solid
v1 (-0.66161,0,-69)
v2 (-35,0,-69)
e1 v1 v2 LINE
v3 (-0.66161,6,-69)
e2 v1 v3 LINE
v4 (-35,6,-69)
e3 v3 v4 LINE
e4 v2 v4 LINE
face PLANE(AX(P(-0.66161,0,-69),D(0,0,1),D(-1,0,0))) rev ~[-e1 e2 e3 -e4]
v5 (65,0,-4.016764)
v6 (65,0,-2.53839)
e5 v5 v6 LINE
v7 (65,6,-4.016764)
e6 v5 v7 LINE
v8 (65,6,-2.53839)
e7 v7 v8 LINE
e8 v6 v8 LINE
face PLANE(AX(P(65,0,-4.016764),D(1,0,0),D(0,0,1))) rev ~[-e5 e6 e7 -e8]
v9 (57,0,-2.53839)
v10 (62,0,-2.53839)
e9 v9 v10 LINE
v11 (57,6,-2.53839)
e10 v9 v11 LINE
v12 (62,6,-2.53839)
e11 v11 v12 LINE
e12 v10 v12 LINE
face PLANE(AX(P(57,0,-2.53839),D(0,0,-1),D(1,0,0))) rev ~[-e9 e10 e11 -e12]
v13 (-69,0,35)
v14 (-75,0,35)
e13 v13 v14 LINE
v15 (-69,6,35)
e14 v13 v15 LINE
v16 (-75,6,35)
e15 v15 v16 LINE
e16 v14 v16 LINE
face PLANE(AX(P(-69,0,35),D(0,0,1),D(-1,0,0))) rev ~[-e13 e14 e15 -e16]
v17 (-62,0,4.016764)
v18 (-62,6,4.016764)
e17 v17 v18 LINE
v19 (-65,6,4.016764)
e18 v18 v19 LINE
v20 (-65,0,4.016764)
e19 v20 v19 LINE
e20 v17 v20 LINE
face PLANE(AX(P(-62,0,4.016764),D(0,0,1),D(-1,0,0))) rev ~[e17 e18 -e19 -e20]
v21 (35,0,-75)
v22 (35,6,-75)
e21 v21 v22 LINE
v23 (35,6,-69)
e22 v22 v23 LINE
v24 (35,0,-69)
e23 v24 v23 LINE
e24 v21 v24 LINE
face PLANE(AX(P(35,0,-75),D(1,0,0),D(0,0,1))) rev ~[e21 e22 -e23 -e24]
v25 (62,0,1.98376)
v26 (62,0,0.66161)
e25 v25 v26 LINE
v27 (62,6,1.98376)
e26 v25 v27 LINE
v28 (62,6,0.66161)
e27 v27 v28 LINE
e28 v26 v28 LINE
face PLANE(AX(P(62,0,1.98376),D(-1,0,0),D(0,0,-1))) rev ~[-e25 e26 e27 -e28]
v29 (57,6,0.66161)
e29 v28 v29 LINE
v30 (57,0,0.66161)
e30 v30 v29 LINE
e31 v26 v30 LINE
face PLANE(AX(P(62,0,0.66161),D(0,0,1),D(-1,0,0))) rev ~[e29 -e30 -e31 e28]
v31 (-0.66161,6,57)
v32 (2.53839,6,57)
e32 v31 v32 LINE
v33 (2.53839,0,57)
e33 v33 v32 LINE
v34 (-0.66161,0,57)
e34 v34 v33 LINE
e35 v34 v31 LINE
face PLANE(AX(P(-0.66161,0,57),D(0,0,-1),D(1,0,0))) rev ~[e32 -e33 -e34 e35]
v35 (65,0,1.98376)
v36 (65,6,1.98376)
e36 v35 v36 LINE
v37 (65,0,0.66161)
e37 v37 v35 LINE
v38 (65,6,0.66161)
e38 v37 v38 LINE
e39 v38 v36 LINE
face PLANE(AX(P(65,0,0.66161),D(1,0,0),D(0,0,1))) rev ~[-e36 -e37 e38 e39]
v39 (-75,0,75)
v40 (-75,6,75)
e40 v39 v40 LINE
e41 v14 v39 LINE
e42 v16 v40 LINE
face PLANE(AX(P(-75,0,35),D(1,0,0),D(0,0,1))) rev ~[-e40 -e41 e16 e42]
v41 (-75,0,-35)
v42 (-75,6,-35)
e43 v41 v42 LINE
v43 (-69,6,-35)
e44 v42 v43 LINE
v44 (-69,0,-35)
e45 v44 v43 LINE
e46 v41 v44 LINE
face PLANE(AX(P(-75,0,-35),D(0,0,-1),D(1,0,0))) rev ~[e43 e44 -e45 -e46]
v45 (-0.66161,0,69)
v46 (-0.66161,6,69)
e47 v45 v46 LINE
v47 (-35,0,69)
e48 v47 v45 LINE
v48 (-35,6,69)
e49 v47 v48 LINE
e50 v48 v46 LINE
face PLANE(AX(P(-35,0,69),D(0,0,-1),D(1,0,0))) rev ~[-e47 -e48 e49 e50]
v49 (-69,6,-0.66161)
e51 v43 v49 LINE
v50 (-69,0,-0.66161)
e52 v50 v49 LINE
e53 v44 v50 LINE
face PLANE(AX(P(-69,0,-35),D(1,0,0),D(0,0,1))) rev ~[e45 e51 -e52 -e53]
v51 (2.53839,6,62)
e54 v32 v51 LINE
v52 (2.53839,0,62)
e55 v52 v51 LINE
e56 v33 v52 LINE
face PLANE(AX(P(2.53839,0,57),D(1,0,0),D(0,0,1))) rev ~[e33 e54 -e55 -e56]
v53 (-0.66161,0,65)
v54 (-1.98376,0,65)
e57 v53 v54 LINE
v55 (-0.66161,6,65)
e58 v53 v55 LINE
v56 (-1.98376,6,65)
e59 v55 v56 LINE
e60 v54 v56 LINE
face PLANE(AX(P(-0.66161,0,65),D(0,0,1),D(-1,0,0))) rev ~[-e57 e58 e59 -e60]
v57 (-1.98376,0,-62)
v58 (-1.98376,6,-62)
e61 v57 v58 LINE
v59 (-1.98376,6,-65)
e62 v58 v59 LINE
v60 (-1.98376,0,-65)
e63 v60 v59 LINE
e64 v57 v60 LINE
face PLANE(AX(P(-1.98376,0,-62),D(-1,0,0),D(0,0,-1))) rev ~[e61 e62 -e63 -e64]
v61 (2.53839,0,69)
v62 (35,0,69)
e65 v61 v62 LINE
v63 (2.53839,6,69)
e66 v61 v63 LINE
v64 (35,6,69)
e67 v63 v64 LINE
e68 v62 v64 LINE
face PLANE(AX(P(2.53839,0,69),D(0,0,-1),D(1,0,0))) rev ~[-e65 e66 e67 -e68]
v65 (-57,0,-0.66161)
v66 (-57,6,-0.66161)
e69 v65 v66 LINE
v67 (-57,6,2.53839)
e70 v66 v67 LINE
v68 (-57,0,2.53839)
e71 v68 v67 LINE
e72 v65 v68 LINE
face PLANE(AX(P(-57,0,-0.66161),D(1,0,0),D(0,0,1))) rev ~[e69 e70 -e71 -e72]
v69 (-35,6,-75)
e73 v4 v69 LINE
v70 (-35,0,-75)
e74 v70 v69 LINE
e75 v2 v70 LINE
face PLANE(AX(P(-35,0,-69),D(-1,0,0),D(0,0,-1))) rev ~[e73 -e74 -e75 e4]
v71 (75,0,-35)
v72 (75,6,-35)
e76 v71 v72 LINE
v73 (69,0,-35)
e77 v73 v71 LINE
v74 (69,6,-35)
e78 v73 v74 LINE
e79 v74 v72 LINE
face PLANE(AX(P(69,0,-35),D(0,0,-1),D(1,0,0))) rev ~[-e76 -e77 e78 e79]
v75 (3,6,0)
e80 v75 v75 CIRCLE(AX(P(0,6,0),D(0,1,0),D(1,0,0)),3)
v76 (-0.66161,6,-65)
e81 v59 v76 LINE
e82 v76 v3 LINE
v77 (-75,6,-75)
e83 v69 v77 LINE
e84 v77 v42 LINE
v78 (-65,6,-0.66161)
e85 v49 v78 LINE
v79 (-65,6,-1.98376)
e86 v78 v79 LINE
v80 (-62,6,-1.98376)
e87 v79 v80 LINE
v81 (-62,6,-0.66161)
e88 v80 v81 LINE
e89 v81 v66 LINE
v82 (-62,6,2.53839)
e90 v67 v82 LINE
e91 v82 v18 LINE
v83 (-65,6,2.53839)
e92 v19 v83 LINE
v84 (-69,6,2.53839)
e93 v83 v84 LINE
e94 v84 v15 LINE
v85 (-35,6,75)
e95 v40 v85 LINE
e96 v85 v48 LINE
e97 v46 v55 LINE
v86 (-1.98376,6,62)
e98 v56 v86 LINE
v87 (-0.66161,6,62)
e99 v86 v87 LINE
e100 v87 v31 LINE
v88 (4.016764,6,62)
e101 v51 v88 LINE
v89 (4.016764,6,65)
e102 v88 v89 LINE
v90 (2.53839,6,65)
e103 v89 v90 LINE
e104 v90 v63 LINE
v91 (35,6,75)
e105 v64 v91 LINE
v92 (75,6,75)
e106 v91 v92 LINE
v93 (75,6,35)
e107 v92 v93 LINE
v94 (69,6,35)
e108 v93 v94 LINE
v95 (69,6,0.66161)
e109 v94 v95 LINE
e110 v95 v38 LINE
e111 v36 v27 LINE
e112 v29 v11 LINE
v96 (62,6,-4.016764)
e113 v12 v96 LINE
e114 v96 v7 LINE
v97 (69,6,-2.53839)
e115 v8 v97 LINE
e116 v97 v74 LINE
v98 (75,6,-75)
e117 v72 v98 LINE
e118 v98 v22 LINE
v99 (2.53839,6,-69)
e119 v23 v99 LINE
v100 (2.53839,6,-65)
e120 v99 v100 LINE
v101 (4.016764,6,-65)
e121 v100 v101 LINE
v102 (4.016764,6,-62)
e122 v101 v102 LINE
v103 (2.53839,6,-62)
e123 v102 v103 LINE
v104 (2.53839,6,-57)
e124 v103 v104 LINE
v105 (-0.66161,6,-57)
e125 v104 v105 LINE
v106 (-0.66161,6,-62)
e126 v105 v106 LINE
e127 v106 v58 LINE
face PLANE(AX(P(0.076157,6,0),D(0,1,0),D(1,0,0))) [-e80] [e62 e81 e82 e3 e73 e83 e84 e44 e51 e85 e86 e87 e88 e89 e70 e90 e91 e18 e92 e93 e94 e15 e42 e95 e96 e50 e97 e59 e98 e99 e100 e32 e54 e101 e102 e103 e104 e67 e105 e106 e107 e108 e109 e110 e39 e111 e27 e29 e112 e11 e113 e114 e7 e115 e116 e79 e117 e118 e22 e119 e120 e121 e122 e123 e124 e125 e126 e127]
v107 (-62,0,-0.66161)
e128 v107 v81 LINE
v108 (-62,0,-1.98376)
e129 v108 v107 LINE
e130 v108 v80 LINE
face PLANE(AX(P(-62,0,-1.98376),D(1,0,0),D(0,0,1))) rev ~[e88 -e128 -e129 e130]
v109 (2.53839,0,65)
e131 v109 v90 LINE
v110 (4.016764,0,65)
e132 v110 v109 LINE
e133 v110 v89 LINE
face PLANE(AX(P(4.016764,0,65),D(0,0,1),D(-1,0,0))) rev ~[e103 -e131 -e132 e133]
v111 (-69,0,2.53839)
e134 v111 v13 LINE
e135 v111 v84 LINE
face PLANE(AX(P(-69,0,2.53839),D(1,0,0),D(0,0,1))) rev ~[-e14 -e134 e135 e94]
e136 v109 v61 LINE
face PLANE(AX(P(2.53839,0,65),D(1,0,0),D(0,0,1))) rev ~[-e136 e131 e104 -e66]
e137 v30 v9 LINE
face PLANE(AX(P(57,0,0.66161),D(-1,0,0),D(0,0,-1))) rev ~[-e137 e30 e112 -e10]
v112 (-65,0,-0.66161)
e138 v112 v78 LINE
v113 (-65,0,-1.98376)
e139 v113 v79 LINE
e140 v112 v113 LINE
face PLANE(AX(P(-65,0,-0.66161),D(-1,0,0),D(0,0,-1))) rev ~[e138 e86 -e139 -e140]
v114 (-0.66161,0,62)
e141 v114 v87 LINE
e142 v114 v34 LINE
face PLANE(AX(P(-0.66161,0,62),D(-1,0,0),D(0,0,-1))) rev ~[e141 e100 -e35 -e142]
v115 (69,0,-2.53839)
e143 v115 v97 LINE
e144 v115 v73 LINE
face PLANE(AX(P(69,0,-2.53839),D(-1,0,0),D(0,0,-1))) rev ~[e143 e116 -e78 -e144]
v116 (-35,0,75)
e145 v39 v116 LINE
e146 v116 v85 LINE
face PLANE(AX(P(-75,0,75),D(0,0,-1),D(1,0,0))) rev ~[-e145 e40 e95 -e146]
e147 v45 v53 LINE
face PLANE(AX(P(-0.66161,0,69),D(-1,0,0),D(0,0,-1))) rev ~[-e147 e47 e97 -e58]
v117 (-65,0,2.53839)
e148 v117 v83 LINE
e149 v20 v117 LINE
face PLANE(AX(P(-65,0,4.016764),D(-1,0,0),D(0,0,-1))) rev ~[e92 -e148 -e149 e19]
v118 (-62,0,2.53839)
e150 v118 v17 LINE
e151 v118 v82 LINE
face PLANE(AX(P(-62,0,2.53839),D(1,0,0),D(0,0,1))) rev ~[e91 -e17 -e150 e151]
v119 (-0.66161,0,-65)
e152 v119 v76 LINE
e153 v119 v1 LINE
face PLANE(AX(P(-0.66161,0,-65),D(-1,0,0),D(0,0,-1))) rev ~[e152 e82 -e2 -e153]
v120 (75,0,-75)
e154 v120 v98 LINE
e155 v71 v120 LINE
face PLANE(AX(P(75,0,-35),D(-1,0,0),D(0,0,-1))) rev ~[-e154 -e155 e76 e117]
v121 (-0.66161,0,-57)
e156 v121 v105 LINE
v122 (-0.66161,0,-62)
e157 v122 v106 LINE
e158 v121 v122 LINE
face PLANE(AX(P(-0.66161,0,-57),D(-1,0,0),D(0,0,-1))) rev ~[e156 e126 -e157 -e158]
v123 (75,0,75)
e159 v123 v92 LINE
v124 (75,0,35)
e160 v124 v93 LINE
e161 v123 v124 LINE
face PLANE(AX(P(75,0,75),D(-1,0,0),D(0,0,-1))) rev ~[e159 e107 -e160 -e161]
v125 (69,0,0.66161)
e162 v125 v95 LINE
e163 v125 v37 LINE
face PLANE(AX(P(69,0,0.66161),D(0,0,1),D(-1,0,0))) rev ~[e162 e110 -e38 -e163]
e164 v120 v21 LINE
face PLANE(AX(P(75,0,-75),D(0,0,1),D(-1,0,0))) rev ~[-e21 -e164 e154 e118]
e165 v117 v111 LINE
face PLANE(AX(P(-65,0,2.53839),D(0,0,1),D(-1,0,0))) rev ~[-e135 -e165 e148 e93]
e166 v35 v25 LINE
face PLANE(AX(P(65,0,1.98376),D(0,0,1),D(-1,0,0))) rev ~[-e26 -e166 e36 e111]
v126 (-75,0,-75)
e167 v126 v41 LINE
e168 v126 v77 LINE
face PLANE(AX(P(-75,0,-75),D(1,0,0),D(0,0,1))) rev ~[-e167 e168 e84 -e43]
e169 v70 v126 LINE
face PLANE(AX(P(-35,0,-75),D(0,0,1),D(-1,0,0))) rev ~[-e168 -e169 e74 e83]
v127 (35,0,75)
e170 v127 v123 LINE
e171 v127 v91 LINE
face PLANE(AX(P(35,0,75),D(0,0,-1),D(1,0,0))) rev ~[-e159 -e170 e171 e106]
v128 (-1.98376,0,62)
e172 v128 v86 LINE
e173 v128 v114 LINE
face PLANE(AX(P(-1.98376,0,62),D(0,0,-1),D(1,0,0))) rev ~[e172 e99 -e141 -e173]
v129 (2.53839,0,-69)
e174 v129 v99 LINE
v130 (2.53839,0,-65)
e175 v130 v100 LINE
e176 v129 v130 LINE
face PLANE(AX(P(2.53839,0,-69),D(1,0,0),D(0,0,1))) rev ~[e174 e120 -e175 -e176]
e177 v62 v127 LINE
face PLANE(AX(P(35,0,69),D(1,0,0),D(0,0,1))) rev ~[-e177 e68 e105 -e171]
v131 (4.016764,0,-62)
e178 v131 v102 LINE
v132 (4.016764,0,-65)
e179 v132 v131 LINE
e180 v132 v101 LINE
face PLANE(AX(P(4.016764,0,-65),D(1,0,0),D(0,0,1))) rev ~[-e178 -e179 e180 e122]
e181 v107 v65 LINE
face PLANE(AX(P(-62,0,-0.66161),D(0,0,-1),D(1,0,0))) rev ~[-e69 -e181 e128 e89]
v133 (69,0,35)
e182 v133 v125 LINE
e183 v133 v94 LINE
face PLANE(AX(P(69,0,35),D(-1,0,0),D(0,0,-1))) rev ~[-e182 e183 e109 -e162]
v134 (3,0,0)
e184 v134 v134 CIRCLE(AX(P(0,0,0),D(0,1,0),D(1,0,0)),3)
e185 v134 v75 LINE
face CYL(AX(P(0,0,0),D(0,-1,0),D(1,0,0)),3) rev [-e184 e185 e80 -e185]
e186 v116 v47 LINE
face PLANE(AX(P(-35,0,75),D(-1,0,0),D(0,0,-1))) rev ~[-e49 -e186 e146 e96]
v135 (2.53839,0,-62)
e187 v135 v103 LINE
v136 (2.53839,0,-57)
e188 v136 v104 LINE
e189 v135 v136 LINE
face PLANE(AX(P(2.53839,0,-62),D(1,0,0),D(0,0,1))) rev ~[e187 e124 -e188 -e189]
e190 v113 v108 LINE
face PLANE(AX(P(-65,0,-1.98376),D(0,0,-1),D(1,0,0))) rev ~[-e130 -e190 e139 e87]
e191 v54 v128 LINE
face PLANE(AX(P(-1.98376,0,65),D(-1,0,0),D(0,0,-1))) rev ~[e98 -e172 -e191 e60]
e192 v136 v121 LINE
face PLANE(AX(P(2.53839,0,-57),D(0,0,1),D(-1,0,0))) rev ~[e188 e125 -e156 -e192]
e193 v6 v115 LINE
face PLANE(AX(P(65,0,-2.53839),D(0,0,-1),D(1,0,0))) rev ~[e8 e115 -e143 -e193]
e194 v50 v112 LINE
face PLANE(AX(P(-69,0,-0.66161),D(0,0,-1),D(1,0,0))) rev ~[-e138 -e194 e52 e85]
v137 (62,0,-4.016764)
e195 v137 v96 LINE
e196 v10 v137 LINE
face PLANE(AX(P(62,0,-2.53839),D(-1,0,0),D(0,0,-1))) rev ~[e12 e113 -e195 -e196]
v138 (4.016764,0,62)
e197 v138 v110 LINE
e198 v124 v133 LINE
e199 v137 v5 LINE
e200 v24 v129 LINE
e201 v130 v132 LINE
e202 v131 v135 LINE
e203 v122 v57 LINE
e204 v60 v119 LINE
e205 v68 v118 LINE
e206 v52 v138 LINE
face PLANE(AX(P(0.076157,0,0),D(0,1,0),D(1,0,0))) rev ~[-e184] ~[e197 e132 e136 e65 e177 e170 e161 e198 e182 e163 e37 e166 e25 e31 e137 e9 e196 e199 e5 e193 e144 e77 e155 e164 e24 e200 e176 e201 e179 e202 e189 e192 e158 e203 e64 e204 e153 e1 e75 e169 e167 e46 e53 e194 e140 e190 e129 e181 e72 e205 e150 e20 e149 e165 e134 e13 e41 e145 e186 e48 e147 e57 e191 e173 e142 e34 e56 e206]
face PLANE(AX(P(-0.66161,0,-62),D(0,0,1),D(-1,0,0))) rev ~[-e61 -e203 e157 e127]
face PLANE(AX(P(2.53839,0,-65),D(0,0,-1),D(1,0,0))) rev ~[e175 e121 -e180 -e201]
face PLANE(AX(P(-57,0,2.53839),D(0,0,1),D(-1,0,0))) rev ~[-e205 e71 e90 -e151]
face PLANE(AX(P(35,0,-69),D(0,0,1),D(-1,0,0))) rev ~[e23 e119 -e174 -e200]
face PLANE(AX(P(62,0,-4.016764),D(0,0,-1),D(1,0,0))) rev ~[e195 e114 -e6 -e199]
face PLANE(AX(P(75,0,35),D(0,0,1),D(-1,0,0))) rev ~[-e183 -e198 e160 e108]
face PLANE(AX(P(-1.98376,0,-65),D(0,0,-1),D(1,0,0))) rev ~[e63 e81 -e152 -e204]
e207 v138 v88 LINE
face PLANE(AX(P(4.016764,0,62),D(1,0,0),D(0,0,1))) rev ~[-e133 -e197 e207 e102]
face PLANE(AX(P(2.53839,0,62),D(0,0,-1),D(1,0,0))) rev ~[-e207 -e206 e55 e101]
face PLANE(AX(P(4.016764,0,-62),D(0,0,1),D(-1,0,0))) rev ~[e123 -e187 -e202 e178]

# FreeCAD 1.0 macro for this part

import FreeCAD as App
import Part
import Sketcher
from FreeCAD import Vector


def add_polygon(sketch, points):
    """Adds a closed chain of lines whose ends are joined by coincident constraints."""
    first, n = sketch.GeometryCount, len(points)
    for a, b in zip(points, points[1:] + points[:1]):
        sketch.addGeometry(Part.LineSegment(App.Vector(*a, 0), App.Vector(*b, 0)), False)
    for i in range(n):
        sketch.addConstraint(Sketcher.Constraint("Coincident", first + i, 2, first + (i + 1) % n, 1))

doc = App.newDocument("Part")
body = doc.addObject("PartDesign::Body", "Body")

# Sketch on XZ plane
sketch1 = body.newObject("Sketcher::SketchObject", "Sketch")
sketch1.AttachmentSupport = (doc.getObject("XZ_Plane"), [""])
sketch1.MapMode = "FlatFace"
add_polygon(sketch1, [(75, 35), (69, 35), (69, 0.66161), (65, 0.66161), (65, 1.98376), (62, 1.98376), (62, 0.66161), (57, 0.66161), (57, -2.53839), (62, -2.53839), (62, -4.016764), (65, -4.016764), (65, -2.53839), (69, -2.53839), (69, -35), (75, -35), (75, -75), (35, -75), (35, -69), (2.53839, -69), (2.53839, -65), (4.016764, -65), (4.016764, -62), (2.53839, -62), (2.53839, -57), (-0.66161, -57), (-0.66161, -62), (-1.98376, -62), (-1.98376, -65), (-0.66161, -65), (-0.66161, -69), (-35, -69), (-35, -75), (-75, -75), (-75, -35), (-69, -35), (-69, -0.66161), (-65, -0.66161), (-65, -1.98376), (-62, -1.98376), (-62, -0.66161), (-57, -0.66161), (-57, 2.53839), (-62, 2.53839), (-62, 4.016764), (-65, 4.016764), (-65, 2.53839), (-69, 2.53839), (-69, 35), (-75, 35), (-75, 75), (-35, 75), (-35, 69), (-0.66161, 69), (-0.66161, 65), (-1.98376, 65), (-1.98376, 62), (-0.66161, 62), (-0.66161, 57), (2.53839, 57), (2.53839, 62), (4.016764, 62), (4.016764, 65), (2.53839, 65), (2.53839, 69), (35, 69), (35, 75), (75, 75)])  # lines 0-67
sketch1.addGeometry(Part.Circle(Vector(0, 0, 0), Vector(0, 0, 1), 3), False)  # 68
sketch1.addConstraint(Sketcher.Constraint("Horizontal", 0))
sketch1.addConstraint(Sketcher.Constraint("Vertical", 1))
sketch1.addConstraint(Sketcher.Constraint("Horizontal", 2))
sketch1.addConstraint(Sketcher.Constraint("Vertical", 3))
sketch1.addConstraint(Sketcher.Constraint("Horizontal", 4))
sketch1.addConstraint(Sketcher.Constraint("Vertical", 5))
sketch1.addConstraint(Sketcher.Constraint("Horizontal", 6))
sketch1.addConstraint(Sketcher.Constraint("Vertical", 7))
sketch1.addConstraint(Sketcher.Constraint("Horizontal", 8))
sketch1.addConstraint(Sketcher.Constraint("Vertical", 9))
sketch1.addConstraint(Sketcher.Constraint("Horizontal", 10))
sketch1.addConstraint(Sketcher.Constraint("Vertical", 11))
sketch1.addConstraint(Sketcher.Constraint("Horizontal", 12))
sketch1.addConstraint(Sketcher.Constraint("Vertical", 13))
sketch1.addConstraint(Sketcher.Constraint("Horizontal", 14))
sketch1.addConstraint(Sketcher.Constraint("Vertical", 15))
sketch1.addConstraint(Sketcher.Constraint("Horizontal", 16))
sketch1.addConstraint(Sketcher.Constraint("Vertical", 17))
sketch1.addConstraint(Sketcher.Constraint("Horizontal", 18))
sketch1.addConstraint(Sketcher.Constraint("Vertical", 19))
sketch1.addConstraint(Sketcher.Constraint("Horizontal", 20))
sketch1.addConstraint(Sketcher.Constraint("Vertical", 21))
sketch1.addConstraint(Sketcher.Constraint("Horizontal", 22))
sketch1.addConstraint(Sketcher.Constraint("Vertical", 23))
sketch1.addConstraint(Sketcher.Constraint("Horizontal", 24))
sketch1.addConstraint(Sketcher.Constraint("Vertical", 25))
sketch1.addConstraint(Sketcher.Constraint("Horizontal", 26))
sketch1.addConstraint(Sketcher.Constraint("Vertical", 27))
sketch1.addConstraint(Sketcher.Constraint("Horizontal", 28))
sketch1.addConstraint(Sketcher.Constraint("Vertical", 29))
sketch1.addConstraint(Sketcher.Constraint("Horizontal", 30))
sketch1.addConstraint(Sketcher.Constraint("Vertical", 31))
sketch1.addConstraint(Sketcher.Constraint("Horizontal", 32))
sketch1.addConstraint(Sketcher.Constraint("Vertical", 33))
sketch1.addConstraint(Sketcher.Constraint("Horizontal", 34))
sketch1.addConstraint(Sketcher.Constraint("Vertical", 35))
sketch1.addConstraint(Sketcher.Constraint("Horizontal", 36))
sketch1.addConstraint(Sketcher.Constraint("Vertical", 37))
sketch1.addConstraint(Sketcher.Constraint("Horizontal", 38))
sketch1.addConstraint(Sketcher.Constraint("Vertical", 39))
sketch1.addConstraint(Sketcher.Constraint("Horizontal", 40))
sketch1.addConstraint(Sketcher.Constraint("Vertical", 41))
sketch1.addConstraint(Sketcher.Constraint("Horizontal", 42))
sketch1.addConstraint(Sketcher.Constraint("Vertical", 43))
sketch1.addConstraint(Sketcher.Constraint("Horizontal", 44))
sketch1.addConstraint(Sketcher.Constraint("Vertical", 45))
sketch1.addConstraint(Sketcher.Constraint("Horizontal", 46))
sketch1.addConstraint(Sketcher.Constraint("Vertical", 47))
sketch1.addConstraint(Sketcher.Constraint("Horizontal", 48))
sketch1.addConstraint(Sketcher.Constraint("Vertical", 49))
sketch1.addConstraint(Sketcher.Constraint("Horizontal", 50))
sketch1.addConstraint(Sketcher.Constraint("Vertical", 51))
sketch1.addConstraint(Sketcher.Constraint("Horizontal", 52))
sketch1.addConstraint(Sketcher.Constraint("Vertical", 53))
sketch1.addConstraint(Sketcher.Constraint("Horizontal", 54))
sketch1.addConstraint(Sketcher.Constraint("Vertical", 55))
sketch1.addConstraint(Sketcher.Constraint("Horizontal", 56))
sketch1.addConstraint(Sketcher.Constraint("Vertical", 57))
sketch1.addConstraint(Sketcher.Constraint("Horizontal", 58))
sketch1.addConstraint(Sketcher.Constraint("Vertical", 59))
sketch1.addConstraint(Sketcher.Constraint("Horizontal", 60))
sketch1.addConstraint(Sketcher.Constraint("Vertical", 61))
sketch1.addConstraint(Sketcher.Constraint("Horizontal", 62))
sketch1.addConstraint(Sketcher.Constraint("Vertical", 63))
sketch1.addConstraint(Sketcher.Constraint("Horizontal", 64))
sketch1.addConstraint(Sketcher.Constraint("Vertical", 65))
sketch1.addConstraint(Sketcher.Constraint("Horizontal", 66))
sketch1.addConstraint(Sketcher.Constraint("Vertical", 67))
sketch1.addConstraint(Sketcher.Constraint("Coincident", 68, 3, -1, 1))
sketch1.addConstraint(Sketcher.Constraint("Symmetric", 0, 2, 34, 2, -1, 1))
sketch1.addConstraint(Sketcher.Constraint("Symmetric", 2, 2, 36, 2, -1, 1))
sketch1.addConstraint(Sketcher.Constraint("Symmetric", 4, 2, 38, 2, -1, 1))
sketch1.addConstraint(Sketcher.Constraint("Symmetric", 6, 2, 40, 2, -1, 1))
sketch1.addConstraint(Sketcher.Constraint("Symmetric", 8, 2, 42, 2, -1, 1))
sketch1.addConstraint(Sketcher.Constraint("Symmetric", 10, 2, 44, 2, -1, 1))
sketch1.addConstraint(Sketcher.Constraint("Symmetric", 12, 2, 46, 2, -1, 1))
sketch1.addConstraint(Sketcher.Constraint("Symmetric", 14, 2, 48, 2, -1, 1))
sketch1.addConstraint(Sketcher.Constraint("Symmetric", 16, 2, 50, 2, -1, 1))
sketch1.addConstraint(Sketcher.Constraint("Symmetric", 30, 2, 64, 2, -1, 1))
sketch1.addConstraint(Sketcher.Constraint("Symmetric", 32, 2, 66, 2, -1, 1))
sketch1.addConstraint(Sketcher.Constraint("Symmetric", 17, 2, 30, 2, -2))
sketch1.addConstraint(Sketcher.Constraint("Symmetric", 15, 2, 32, 2, -2))
sketch1.addConstraint(Sketcher.Constraint("Symmetric", 13, 2, 34, 2, -2))
sketch1.addConstraint(Sketcher.Constraint("Symmetric", 29, 2, 52, 2, -1))
sketch1.addConstraint(Sketcher.Constraint("Symmetric", 27, 2, 54, 2, -1))
sketch1.addConstraint(Sketcher.Constraint("Symmetric", 25, 2, 56, 2, -1))
sketch1.addConstraint(Sketcher.Constraint("Symmetric", 23, 2, 58, 2, -1))
sketch1.addConstraint(Sketcher.Constraint("Symmetric", 21, 2, 60, 2, -1))
sketch1.addConstraint(Sketcher.Constraint("Symmetric", 19, 2, 62, 2, -1))
sketch1.addConstraint(Sketcher.Constraint("Horizontal", 2, 2, 5, 2))
sketch1.addConstraint(Sketcher.Constraint("Horizontal", 8, 2, 11, 2))
sketch1.addConstraint(Sketcher.Constraint("Horizontal", 22, 2, 25, 2))
sketch1.addConstraint(Sketcher.Constraint("Horizontal", 20, 2, 27, 2))
sketch1.addConstraint(Sketcher.Constraint("Vertical", 5, 2, 8, 2))
sketch1.addConstraint(Sketcher.Constraint("Vertical", 3, 2, 10, 2))
sketch1.addConstraint(Sketcher.Constraint("Vertical", 19, 2, 22, 2))
sketch1.addConstraint(Sketcher.Constraint("Vertical", 25, 2, 28, 2))
sketch1.addConstraint(Sketcher.Constraint("Equal", 52, 1))
sketch1.addConstraint(Sketcher.Constraint("Equal", 56, 3))
sketch1.addConstraint(Sketcher.Constraint("Equal", 58, 7))
sketch1.addConstraint(Sketcher.Constraint("Equal", 62, 9))
sketch1.addConstraint(Sketcher.Constraint("Equal", 64, 13))
sketch1.addConstraint(Sketcher.Constraint("Equal", 66, 15))
sketch1.addConstraint(Sketcher.Constraint("Equal", 48, 17))
sketch1.addConstraint(Sketcher.Constraint("Equal", 46, 19))
sketch1.addConstraint(Sketcher.Constraint("Equal", 44, 21))
sketch1.addConstraint(Sketcher.Constraint("Equal", 42, 23))
sketch1.addConstraint(Sketcher.Constraint("Diameter", 68, 6.0))
sketch1.addConstraint(Sketcher.Constraint("DistanceX", 0, 2, 0, 1, 6.0))
sketch1.addConstraint(Sketcher.Constraint("DistanceX", 2, 2, 2, 1, 4.0))
sketch1.addConstraint(Sketcher.Constraint("DistanceX", 4, 2, 4, 1, 3.0))
sketch1.addConstraint(Sketcher.Constraint("DistanceX", 6, 2, 6, 1, 5.0))
sketch1.addConstraint(Sketcher.Constraint("DistanceX", 16, 2, 16, 1, 40.0))
sketch1.addConstraint(Sketcher.Constraint("DistanceX", 24, 2, 24, 1, 3.2))
sketch1.addConstraint(Sketcher.Constraint("DistanceX", -1, 1, 0, 2, 69.0))
sketch1.addConstraint(Sketcher.Constraint("DistanceX", 18, 2, 18, 1, 32.46161))
sketch1.addConstraint(Sketcher.Constraint("DistanceX", 26, 2, 26, 1, 1.322149))
sketch1.addConstraint(Sketcher.Constraint("DistanceX", 20, 1, 20, 2, 1.478375))
pad1 = body.newObject("PartDesign::Pad", "Pad")
pad1.Profile = sketch1
pad1.Length = 6
pad1.Reversed = True

doc.recompute()
